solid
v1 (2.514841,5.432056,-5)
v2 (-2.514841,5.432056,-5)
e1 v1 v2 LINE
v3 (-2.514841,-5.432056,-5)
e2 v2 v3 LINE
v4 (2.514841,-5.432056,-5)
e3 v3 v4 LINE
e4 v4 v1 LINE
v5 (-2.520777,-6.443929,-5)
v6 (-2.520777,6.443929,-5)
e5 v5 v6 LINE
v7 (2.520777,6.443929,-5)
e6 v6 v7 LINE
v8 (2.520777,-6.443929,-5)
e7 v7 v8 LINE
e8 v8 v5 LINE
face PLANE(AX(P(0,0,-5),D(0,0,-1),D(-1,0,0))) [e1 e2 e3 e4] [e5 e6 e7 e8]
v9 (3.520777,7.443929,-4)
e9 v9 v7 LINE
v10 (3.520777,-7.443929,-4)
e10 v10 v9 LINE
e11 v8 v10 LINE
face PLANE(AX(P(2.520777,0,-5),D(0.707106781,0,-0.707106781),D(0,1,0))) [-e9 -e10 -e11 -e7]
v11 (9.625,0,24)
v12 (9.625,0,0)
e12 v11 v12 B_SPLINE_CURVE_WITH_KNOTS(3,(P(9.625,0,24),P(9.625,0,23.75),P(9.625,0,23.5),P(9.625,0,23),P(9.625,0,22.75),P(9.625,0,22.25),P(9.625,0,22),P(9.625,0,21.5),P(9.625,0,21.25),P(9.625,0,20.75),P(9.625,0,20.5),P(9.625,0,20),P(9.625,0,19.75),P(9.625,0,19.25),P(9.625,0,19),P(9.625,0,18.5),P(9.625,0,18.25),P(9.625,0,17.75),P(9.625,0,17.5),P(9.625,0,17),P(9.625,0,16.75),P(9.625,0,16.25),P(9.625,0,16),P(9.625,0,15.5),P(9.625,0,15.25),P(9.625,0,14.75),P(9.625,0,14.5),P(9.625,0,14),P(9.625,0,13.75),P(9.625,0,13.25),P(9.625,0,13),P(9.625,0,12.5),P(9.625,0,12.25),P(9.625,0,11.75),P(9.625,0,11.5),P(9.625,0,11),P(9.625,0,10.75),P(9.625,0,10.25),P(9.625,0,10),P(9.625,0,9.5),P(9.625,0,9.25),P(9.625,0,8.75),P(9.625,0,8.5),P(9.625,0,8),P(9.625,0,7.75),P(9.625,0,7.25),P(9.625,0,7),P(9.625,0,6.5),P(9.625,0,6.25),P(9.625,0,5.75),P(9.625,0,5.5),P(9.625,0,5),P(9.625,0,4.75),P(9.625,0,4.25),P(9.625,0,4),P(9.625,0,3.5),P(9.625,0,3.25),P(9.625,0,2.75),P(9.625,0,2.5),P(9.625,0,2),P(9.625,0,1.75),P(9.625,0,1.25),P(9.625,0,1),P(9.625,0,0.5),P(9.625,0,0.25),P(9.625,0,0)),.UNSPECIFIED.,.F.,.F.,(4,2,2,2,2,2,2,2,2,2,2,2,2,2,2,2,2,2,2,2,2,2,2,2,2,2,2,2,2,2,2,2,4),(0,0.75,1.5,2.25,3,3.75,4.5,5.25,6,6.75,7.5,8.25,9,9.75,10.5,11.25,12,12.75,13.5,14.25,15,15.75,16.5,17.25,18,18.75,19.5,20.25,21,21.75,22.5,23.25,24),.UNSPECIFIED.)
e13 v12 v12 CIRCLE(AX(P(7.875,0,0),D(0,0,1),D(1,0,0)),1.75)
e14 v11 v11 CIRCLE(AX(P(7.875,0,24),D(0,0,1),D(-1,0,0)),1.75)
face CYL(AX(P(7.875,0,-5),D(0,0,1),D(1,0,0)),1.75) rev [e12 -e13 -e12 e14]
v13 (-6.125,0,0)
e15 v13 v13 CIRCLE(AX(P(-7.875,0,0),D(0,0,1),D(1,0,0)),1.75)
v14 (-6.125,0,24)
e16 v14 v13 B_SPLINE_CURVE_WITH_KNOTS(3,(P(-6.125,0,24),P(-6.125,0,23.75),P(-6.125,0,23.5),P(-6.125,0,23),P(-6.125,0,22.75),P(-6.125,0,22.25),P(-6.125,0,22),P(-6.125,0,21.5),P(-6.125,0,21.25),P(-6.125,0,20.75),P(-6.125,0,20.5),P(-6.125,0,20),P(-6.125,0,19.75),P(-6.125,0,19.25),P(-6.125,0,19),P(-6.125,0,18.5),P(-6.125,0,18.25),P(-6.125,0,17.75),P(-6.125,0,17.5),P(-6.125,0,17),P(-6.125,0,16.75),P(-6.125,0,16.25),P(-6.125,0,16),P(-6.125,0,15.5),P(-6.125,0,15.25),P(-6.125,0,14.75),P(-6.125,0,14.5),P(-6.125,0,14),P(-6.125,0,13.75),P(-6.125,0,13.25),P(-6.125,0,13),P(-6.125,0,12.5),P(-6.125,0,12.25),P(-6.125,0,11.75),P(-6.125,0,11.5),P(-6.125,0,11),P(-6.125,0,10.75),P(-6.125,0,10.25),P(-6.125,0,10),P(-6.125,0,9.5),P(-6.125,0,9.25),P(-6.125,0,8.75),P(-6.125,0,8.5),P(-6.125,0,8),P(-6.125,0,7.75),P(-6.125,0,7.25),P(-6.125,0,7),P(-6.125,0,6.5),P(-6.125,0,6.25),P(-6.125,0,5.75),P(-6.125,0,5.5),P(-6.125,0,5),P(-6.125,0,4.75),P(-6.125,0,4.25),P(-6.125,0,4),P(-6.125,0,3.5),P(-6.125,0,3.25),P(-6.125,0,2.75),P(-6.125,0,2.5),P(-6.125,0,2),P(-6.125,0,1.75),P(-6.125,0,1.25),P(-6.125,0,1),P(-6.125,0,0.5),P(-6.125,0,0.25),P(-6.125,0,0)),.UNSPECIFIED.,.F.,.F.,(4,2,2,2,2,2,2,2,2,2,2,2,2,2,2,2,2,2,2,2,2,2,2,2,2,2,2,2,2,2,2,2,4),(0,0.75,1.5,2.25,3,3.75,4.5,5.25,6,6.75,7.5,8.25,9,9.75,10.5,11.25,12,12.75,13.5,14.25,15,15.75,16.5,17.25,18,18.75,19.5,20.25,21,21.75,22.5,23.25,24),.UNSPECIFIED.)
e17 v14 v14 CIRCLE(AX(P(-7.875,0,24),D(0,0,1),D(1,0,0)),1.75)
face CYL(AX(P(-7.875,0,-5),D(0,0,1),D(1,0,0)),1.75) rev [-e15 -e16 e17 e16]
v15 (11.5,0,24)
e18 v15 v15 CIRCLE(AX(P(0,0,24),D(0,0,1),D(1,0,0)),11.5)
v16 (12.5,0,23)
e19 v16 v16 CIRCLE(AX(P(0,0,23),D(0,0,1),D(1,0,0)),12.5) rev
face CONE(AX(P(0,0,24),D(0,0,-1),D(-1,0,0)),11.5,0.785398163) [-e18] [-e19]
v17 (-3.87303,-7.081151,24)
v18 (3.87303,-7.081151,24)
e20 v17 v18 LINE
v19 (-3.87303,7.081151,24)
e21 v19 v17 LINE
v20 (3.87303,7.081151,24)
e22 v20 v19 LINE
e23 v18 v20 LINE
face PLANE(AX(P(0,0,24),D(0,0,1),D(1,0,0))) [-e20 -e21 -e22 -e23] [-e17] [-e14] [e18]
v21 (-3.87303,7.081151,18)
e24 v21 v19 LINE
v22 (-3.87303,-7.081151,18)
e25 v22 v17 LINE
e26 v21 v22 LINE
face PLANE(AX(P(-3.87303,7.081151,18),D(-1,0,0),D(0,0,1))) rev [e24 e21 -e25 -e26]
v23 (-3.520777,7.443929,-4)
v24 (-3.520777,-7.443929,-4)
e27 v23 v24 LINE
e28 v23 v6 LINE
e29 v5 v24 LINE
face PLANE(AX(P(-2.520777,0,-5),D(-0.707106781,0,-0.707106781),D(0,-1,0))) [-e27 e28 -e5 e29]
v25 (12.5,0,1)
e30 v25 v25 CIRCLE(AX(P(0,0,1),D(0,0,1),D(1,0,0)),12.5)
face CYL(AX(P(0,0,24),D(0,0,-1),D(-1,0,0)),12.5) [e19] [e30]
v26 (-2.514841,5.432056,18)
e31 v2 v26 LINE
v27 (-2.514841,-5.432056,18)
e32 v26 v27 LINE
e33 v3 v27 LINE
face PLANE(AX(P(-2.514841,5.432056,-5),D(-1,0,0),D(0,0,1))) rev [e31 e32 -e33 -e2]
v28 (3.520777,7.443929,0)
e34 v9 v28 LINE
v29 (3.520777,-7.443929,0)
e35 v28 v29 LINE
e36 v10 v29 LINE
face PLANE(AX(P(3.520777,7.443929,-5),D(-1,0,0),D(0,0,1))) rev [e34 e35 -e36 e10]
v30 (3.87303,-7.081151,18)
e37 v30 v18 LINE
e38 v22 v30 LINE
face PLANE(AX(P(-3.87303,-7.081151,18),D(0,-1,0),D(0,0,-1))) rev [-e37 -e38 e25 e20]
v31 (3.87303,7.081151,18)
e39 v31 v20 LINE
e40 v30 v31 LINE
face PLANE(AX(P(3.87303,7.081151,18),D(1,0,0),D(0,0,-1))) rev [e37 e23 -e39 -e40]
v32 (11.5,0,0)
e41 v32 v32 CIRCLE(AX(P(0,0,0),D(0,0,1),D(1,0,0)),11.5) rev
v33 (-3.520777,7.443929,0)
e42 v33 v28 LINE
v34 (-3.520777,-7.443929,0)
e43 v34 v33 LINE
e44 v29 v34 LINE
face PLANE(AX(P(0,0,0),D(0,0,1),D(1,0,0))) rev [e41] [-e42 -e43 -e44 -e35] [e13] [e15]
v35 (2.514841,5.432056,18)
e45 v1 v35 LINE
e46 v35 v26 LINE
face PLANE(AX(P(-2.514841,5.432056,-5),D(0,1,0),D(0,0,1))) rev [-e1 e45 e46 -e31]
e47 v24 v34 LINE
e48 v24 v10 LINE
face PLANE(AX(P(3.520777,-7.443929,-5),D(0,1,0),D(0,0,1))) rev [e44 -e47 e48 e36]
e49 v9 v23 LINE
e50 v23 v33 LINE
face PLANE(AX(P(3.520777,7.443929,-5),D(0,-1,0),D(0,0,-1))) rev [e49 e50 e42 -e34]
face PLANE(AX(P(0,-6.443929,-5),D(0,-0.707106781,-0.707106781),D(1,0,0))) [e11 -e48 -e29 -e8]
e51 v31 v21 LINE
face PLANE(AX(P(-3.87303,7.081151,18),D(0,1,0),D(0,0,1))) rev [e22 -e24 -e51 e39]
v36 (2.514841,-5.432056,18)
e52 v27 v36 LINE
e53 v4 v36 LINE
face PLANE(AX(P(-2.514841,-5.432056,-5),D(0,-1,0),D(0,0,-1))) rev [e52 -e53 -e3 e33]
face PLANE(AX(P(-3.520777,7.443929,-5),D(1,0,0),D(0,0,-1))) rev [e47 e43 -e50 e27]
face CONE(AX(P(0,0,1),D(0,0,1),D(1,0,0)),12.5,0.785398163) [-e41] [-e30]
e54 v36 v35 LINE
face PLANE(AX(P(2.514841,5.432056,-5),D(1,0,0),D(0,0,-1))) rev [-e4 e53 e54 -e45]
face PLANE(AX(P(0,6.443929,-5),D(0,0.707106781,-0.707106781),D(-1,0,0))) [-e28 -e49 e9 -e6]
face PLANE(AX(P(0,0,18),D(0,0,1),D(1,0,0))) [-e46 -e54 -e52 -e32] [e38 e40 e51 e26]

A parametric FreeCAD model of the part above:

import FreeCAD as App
import Part
import Sketcher

V = App.Vector


def edges_at(feature, points):
    """Names of the edges that pass closest to the given points."""
    edges = feature.Shape.Edges
    near = lambda p: min(range(len(edges)), key=lambda i: edges[i].distToShape(Part.Vertex(*p))[0])
    return sorted({f"Edge{near(p) + 1}" for p in points})

doc = App.newDocument("Part")
body = doc.addObject("PartDesign::Body", "Body")

sketch1 = body.newObject("Sketcher::SketchObject", "Sketch")
sketch1.AttachmentSupport = (doc.getObject("XY_Plane"), [""])
sketch1.MapMode = "FlatFace"
sketch1.addGeometry(Part.Circle(V(0, 0, 0), V(0, 0, 1), 12.5), False)
sketch1.addConstraint(Sketcher.Constraint("Coincident", 0, 3, -1, 1))
sketch1.addConstraint(Sketcher.Constraint("Diameter", 0, 25.0))
pad1 = body.newObject("PartDesign::Pad", "Pad")
pad1.Profile = sketch1
pad1.Length = 24

sketch2 = body.newObject("Sketcher::SketchObject", "Sketch001")
sketch2.AttachmentSupport = (doc.getObject("XY_Plane"), [""])
sketch2.MapMode = "FlatFace"
sketch2.AttachmentOffset = App.Placement(V(0, 0, 24), App.Rotation())
sketch2.addGeometry(Part.LineSegment(V(-3.87303, 7.081151, 0), V(-3.87303, -7.081151, 0)), False)
sketch2.addGeometry(Part.LineSegment(V(-3.87303, -7.081151, 0), V(3.87303, -7.081151, 0)), False)
sketch2.addGeometry(Part.LineSegment(V(3.87303, -7.081151, 0), V(3.87303, 7.081151, 0)), False)
sketch2.addGeometry(Part.LineSegment(V(3.87303, 7.081151, 0), V(-3.87303, 7.081151, 0)), False)
sketch2.addConstraint(Sketcher.Constraint("Coincident", 0, 2, 1, 1))
sketch2.addConstraint(Sketcher.Constraint("Coincident", 1, 2, 2, 1))
sketch2.addConstraint(Sketcher.Constraint("Coincident", 2, 2, 3, 1))
sketch2.addConstraint(Sketcher.Constraint("Coincident", 3, 2, 0, 1))
sketch2.addConstraint(Sketcher.Constraint("Vertical", 0))
sketch2.addConstraint(Sketcher.Constraint("Horizontal", 1))
sketch2.addConstraint(Sketcher.Constraint("Vertical", 2))
sketch2.addConstraint(Sketcher.Constraint("Horizontal", 3))
sketch2.addConstraint(Sketcher.Constraint("Symmetric", 0, 2, 2, 2, -1, 1))
sketch2.addConstraint(Sketcher.Constraint("DistanceX", 1, 1, 1, 2, 7.74606))
sketch2.addConstraint(Sketcher.Constraint("DistanceY", 0, 2, 0, 1, 14.162303))
pocket1 = body.newObject("PartDesign::Pocket", "Pocket")
pocket1.Profile = sketch2
pocket1.Length = 6

sketch3 = body.newObject("Sketcher::SketchObject", "Sketch002")
sketch3.AttachmentSupport = (doc.getObject("XY_Plane"), [""])
sketch3.MapMode = "FlatFace"
sketch3.addGeometry(Part.LineSegment(V(3.520777, 7.443929, 0), V(3.520777, -7.443929, 0)), False)
sketch3.addGeometry(Part.LineSegment(V(3.520777, -7.443929, 0), V(-3.520777, -7.443929, 0)), False)
sketch3.addGeometry(Part.LineSegment(V(-3.520777, -7.443929, 0), V(-3.520777, 7.443929, 0)), False)
sketch3.addGeometry(Part.LineSegment(V(-3.520777, 7.443929, 0), V(3.520777, 7.443929, 0)), False)
sketch3.addConstraint(Sketcher.Constraint("Coincident", 0, 2, 1, 1))
sketch3.addConstraint(Sketcher.Constraint("Coincident", 1, 2, 2, 1))
sketch3.addConstraint(Sketcher.Constraint("Coincident", 2, 2, 3, 1))
sketch3.addConstraint(Sketcher.Constraint("Coincident", 3, 2, 0, 1))
sketch3.addConstraint(Sketcher.Constraint("Vertical", 0))
sketch3.addConstraint(Sketcher.Constraint("Horizontal", 1))
sketch3.addConstraint(Sketcher.Constraint("Vertical", 2))
sketch3.addConstraint(Sketcher.Constraint("Horizontal", 3))
sketch3.addConstraint(Sketcher.Constraint("Symmetric", 0, 2, 2, 2, -1, 1))
sketch3.addConstraint(Sketcher.Constraint("DistanceY", 0, 2, 0, 1, 14.887859))
sketch3.addConstraint(Sketcher.Constraint("DistanceX", 1, 2, 1, 1, 7.041555))
pad2 = body.newObject("PartDesign::Pad", "Pad001")
pad2.Profile = sketch3
pad2.Length = 5
pad2.Reversed = True
doc.recompute()

chamfer = body.newObject("PartDesign::Chamfer", "Chamfer")
chamfer.Base = (pad2, edges_at(pad2, [
    (-3.521, 0, -5),
    (0, 7.444, -5),
    (3.521, 0, -5),
    (0, -7.444, -5),
]))
chamfer.Size = 1
doc.recompute()

chamfer2 = body.newObject("PartDesign::Chamfer", "Chamfer001")
chamfer2.Base = (chamfer, edges_at(chamfer, [(-12.5, 0, 0)]))
chamfer2.Size = 1

sketch4 = body.newObject("Sketcher::SketchObject", "Sketch003")
sketch4.AttachmentSupport = (doc.getObject("XY_Plane"), [""])
sketch4.MapMode = "FlatFace"
sketch4.AttachmentOffset = App.Placement(V(0, 0, 24), App.Rotation())
sketch4.addGeometry(Part.Circle(V(-7.875, 0, 0), V(0, 0, 1), 1.75), False)
sketch4.addGeometry(Part.Circle(V(7.875, 0, 0), V(0, 0, 1), 1.75), False)
sketch4.addConstraint(Sketcher.Constraint("Equal", 0, 1))
sketch4.addConstraint(Sketcher.Constraint("Symmetric", 0, 3, 1, 3, -1, 1))
sketch4.addConstraint(Sketcher.Constraint("PointOnObject", 0, 3, -1))
sketch4.addConstraint(Sketcher.Constraint("Diameter", 0, 3.5))
sketch4.addConstraint(Sketcher.Constraint("DistanceX", 0, 3, 1, 3, 15.75))
pocket2 = body.newObject("PartDesign::Pocket", "Pocket001")
pocket2.Profile = sketch4
pocket2.Type = "ThroughAll"
doc.recompute()

chamfer3 = body.newObject("PartDesign::Chamfer", "Chamfer002")
chamfer3.Base = (pocket2, edges_at(pocket2, [(-12.5, 0, 24)]))
chamfer3.Size = 1

sketch5 = body.newObject("Sketcher::SketchObject", "Sketch004")
sketch5.AttachmentSupport = (doc.getObject("XY_Plane"), [""])
sketch5.MapMode = "FlatFace"
sketch5.AttachmentOffset = App.Placement(V(0, 0, 18), App.Rotation())
sketch5.addGeometry(Part.LineSegment(V(-2.514841, 5.432056, 0), V(-2.514841, -5.432056, 0)), False)
sketch5.addGeometry(Part.LineSegment(V(-2.514841, -5.432056, 0), V(2.514841, -5.432056, 0)), False)
sketch5.addGeometry(Part.LineSegment(V(2.514841, -5.432056, 0), V(2.514841, 5.432056, 0)), False)
sketch5.addGeometry(Part.LineSegment(V(2.514841, 5.432056, 0), V(-2.514841, 5.432056, 0)), False)
sketch5.addConstraint(Sketcher.Constraint("Coincident", 0, 2, 1, 1))
sketch5.addConstraint(Sketcher.Constraint("Coincident", 1, 2, 2, 1))
sketch5.addConstraint(Sketcher.Constraint("Coincident", 2, 2, 3, 1))
sketch5.addConstraint(Sketcher.Constraint("Coincident", 3, 2, 0, 1))
sketch5.addConstraint(Sketcher.Constraint("Vertical", 0))
sketch5.addConstraint(Sketcher.Constraint("Horizontal", 1))
sketch5.addConstraint(Sketcher.Constraint("Vertical", 2))
sketch5.addConstraint(Sketcher.Constraint("Horizontal", 3))
sketch5.addConstraint(Sketcher.Constraint("Symmetric", 0, 2, 2, 2, -1, 1))
sketch5.addConstraint(Sketcher.Constraint("DistanceX", 1, 1, 1, 2, 5.029682))
sketch5.addConstraint(Sketcher.Constraint("DistanceY", 0, 2, 0, 1, 10.864113))
pocket3 = body.newObject("PartDesign::Pocket", "Pocket002")
pocket3.Profile = sketch5
pocket3.Type = "ThroughAll"

doc.recompute()
